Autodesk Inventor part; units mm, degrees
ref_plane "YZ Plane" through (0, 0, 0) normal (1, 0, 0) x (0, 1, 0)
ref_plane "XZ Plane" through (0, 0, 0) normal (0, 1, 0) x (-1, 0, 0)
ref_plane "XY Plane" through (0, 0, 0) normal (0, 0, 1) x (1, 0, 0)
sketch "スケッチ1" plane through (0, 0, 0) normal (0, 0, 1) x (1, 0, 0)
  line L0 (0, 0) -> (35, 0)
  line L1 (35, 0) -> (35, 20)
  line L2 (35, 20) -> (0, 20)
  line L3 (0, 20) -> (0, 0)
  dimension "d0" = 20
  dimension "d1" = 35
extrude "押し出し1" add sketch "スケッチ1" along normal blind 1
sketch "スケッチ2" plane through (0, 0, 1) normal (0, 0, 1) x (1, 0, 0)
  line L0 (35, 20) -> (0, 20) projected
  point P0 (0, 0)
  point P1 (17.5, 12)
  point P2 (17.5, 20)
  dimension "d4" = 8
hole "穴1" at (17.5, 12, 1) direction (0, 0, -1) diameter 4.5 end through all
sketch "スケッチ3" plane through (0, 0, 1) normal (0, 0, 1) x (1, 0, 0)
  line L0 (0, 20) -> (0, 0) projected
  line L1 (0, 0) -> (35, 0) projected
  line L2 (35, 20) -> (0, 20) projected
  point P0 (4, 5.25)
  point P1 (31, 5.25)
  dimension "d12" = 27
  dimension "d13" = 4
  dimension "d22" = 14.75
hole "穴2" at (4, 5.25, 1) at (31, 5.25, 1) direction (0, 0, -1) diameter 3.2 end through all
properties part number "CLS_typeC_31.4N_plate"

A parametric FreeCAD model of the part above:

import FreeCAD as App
import Part
import Sketcher
Q = App.Units.Quantity


def add_polygon(sketch, points):
    """Adds a closed chain of lines whose ends are joined by coincident constraints."""
    first, n = sketch.GeometryCount, len(points)
    for a, b in zip(points, points[1:] + points[:1]):
        sketch.addGeometry(Part.LineSegment(App.Vector(*a, 0), App.Vector(*b, 0)), False)
    for i in range(n):
        sketch.addConstraint(Sketcher.Constraint("Coincident", first + i, 2, first + (i + 1) % n, 1))

doc = App.newDocument("Part")
params = doc.addObject("Spreadsheet::Sheet", "Params")
for row, (alias, value) in enumerate([
    ("sketch1_width", "35 mm"),
    ("sketch1_height", "20 mm"),
    ("pad1_length", "1 mm"),
    ("sketch2_diameter", "4.5 mm"),
    ("hole_diameter", "4.5 mm"),
    ("sketch3_diameter", "3.2 mm"),
    ("hole2_diameter", "3.2 mm"),
], start=1):
    params.set(f"A{row}", alias)
    params.set(f"B{row}", "=" + value)
    params.setAlias(f"B{row}", alias)

body = doc.addObject("PartDesign::Body", "Body")

# Sketch on XY plane
sketch1 = body.newObject("Sketcher::SketchObject", "Sketch")
sketch1.AttachmentSupport = (doc.getObject("XY_Plane"), [""])
sketch1.MapMode = "FlatFace"
add_polygon(sketch1, [(0, 20), (0, 0), (35, 0), (35, 20)])  # lines 0-3
sketch1.addConstraint(Sketcher.Constraint("Vertical", 0))
sketch1.addConstraint(Sketcher.Constraint("Horizontal", 1))
sketch1.addConstraint(Sketcher.Constraint("Vertical", 2))
sketch1.addConstraint(Sketcher.Constraint("Horizontal", 3))
sketch1.addConstraint(Sketcher.Constraint("Coincident", 0, 2, -1, 1))
sketch1.addConstraint(Sketcher.Constraint("DistanceX", 1, 1, 1, 2, Q("35 mm")))
sketch1.addConstraint(Sketcher.Constraint("DistanceY", 0, 2, 0, 1, Q("20 mm")))
sketch1.setExpression("Constraints[9]", "Params.sketch1_width")
sketch1.setExpression("Constraints[10]", "Params.sketch1_height")
pad1 = body.newObject("PartDesign::Pad", "Pad")
pad1.Profile = sketch1
pad1.setExpression("Length", "Params.pad1_length")

# Sketch on XY plane
sketch2 = body.newObject("Sketcher::SketchObject", "Sketch001")
sketch2.AttachmentSupport = (doc.getObject("XY_Plane"), [""])
sketch2.MapMode = "FlatFace"
sketch2.AttachmentOffset = App.Placement(App.Vector(0, 0, 1), App.Rotation())
sketch2.addGeometry(Part.Circle(App.Vector(17.5, 12, 0), App.Vector(0, 0, 1), 2.25), False)
sketch2.addConstraint(Sketcher.Constraint("Diameter", 0, Q("4.5 mm")))
sketch2.addConstraint(Sketcher.Constraint("DistanceY", -1, 1, 0, 3, Q("12 mm")))
sketch2.addConstraint(Sketcher.Constraint("DistanceX", -1, 1, 0, 3, Q("17.5 mm")))
sketch2.setExpression("Constraints[0]", "Params.sketch2_diameter")
doc.recompute()
hole = body.newObject("PartDesign::Hole", "Hole")
hole.Profile = sketch2
hole.ThreadType = "None"
hole.setExpression("Diameter", "Params.hole_diameter")
hole.DepthType = "ThroughAll"

# Sketch on XY plane
sketch3 = body.newObject("Sketcher::SketchObject", "Sketch002")
sketch3.AttachmentSupport = (doc.getObject("XY_Plane"), [""])
sketch3.MapMode = "FlatFace"
sketch3.AttachmentOffset = App.Placement(App.Vector(0, 0, 1), App.Rotation())
sketch3.addGeometry(Part.Circle(App.Vector(4, 5.25, 0), App.Vector(0, 0, 1), 1.6), False)
sketch3.addGeometry(Part.Circle(App.Vector(31, 5.25, 0), App.Vector(0, 0, 1), 1.6), False)
sketch3.addConstraint(Sketcher.Constraint("Equal", 0, 1))
sketch3.addConstraint(Sketcher.Constraint("Horizontal", 0, 3, 1, 3))
sketch3.addConstraint(Sketcher.Constraint("Diameter", 0, Q("3.2 mm")))
sketch3.addConstraint(Sketcher.Constraint("DistanceX", -1, 1, 0, 3, Q("4 mm")))
sketch3.addConstraint(Sketcher.Constraint("DistanceX", -1, 1, 1, 3, Q("31 mm")))
sketch3.addConstraint(Sketcher.Constraint("DistanceY", -1, 1, 0, 3, Q("5.25 mm")))
sketch3.setExpression("Constraints[2]", "Params.sketch3_diameter")
doc.recompute()
hole2 = body.newObject("PartDesign::Hole", "Hole001")
hole2.Profile = sketch3
hole2.ThreadType = "None"
hole2.setExpression("Diameter", "Params.hole2_diameter")
hole2.DepthType = "ThroughAll"

doc.recompute()
